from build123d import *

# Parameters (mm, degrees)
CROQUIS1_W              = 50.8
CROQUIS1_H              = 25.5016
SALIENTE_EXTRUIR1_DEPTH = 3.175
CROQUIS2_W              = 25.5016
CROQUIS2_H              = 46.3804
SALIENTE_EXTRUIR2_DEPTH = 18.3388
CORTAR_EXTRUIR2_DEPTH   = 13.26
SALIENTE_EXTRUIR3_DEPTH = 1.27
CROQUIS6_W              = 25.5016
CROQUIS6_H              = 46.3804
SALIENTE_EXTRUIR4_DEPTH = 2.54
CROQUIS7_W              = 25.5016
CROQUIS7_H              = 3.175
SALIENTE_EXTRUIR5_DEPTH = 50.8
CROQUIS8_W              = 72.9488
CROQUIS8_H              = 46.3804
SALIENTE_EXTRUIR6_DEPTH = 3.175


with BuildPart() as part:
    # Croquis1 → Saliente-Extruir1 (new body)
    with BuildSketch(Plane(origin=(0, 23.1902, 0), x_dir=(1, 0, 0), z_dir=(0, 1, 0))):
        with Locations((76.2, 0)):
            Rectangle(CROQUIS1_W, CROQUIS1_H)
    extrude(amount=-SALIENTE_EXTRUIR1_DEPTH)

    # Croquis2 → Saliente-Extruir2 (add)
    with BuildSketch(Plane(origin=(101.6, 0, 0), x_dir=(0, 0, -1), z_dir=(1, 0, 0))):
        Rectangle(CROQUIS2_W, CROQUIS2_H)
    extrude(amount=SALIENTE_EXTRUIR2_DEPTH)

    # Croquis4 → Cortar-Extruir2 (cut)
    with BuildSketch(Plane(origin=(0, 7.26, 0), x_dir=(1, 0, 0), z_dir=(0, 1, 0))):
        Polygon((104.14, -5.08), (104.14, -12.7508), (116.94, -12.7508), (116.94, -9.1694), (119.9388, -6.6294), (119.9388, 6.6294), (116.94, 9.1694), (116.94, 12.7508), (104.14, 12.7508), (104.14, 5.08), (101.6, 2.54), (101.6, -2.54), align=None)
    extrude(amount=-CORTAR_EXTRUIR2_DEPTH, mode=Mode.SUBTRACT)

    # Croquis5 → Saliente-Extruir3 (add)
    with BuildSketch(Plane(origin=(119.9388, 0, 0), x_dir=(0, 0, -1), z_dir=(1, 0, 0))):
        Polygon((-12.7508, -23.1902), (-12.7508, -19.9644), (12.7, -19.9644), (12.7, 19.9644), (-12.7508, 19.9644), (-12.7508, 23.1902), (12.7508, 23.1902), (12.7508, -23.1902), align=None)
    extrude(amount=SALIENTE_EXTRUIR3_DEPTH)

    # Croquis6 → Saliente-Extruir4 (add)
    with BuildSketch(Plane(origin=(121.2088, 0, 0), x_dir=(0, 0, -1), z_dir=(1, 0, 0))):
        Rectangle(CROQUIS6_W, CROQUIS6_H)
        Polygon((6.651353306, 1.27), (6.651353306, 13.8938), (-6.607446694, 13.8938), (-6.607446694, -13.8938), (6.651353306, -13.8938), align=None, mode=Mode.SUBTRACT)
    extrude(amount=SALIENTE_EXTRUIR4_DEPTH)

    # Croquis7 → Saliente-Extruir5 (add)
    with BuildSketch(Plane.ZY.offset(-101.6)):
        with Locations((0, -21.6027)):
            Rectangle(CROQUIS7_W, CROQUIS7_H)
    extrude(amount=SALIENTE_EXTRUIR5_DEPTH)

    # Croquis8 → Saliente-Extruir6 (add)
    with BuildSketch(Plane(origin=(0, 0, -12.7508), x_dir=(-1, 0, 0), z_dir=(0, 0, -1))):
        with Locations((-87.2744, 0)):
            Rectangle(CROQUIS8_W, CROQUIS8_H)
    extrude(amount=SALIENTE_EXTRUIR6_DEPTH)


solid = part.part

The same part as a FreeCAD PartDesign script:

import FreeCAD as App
import Part
import Sketcher

V = App.Vector
Q = App.Units.Quantity


def add_polygon(sketch, points):
    """Adds a closed chain of lines whose ends are joined by coincident constraints."""
    first, n = sketch.GeometryCount, len(points)
    for a, b in zip(points, points[1:] + points[:1]):
        sketch.addGeometry(Part.LineSegment(App.Vector(*a, 0), App.Vector(*b, 0)), False)
    for i in range(n):
        sketch.addConstraint(Sketcher.Constraint("Coincident", first + i, 2, first + (i + 1) % n, 1))

doc = App.newDocument("Part")
params = doc.addObject("Spreadsheet::Sheet", "Params")
for row, (alias, value) in enumerate([
    ("sketch1_width", "2 in"),
    ("sketch1_height", "1.004 in"),
    ("pad1_length", "0.125 in"),
    ("sketch2_width", "1.826 in"),
    ("sketch2_height", "1.004 in"),
    ("pad2_length", "0.722 in"),
    ("sketch3_height", "0.2 in"),
    ("sketch3_height2", "0.302 in"),
    ("sketch3_height3", "0.141 in"),
    ("pocket1_length", "13.26 mm"),
    ("sketch4_width", "0.127 in"),
    ("sketch4_width2", "1.826 in"),
    ("sketch4_height", "1.004 in"),
    ("pad3_length", "0.05 in"),
    ("sketch5_width", "1.826 in"),
    ("sketch5_width2", "1.094 in"),
    ("sketch5_height", "1.004 in"),
    ("sketch5_height2", "0.522 in"),
    ("pad4_length", "0.1 in"),
    ("sketch6_width", "0.125 in"),
    ("sketch6_height", "1.004 in"),
    ("pad5_length", "2 in"),
    ("sketch7_width", "2.872 in"),
    ("sketch7_height", "1.826 in"),
    ("pad6_length", "0.125 in"),
], start=1):
    params.set(f"A{row}", alias)
    params.set(f"B{row}", "=" + value)
    params.setAlias(f"B{row}", alias)

body = doc.addObject("PartDesign::Body", "Body")

# Sketch on XZ plane
sketch1 = doc.addObject("Sketcher::SketchObject", "Sketch")
body.addObject(sketch1)
sketch1.AttachmentSupport = (doc.XZ_Plane, [""])
sketch1.MapMode = "FlatFace"
sketch1.AttachmentOffset = App.Placement(V(0, 0, -0.913 * 25.4), App.Rotation())
add_polygon(sketch1, [(51, -13), (51, 13), (102, 13), (102, -13)])  # lines 0-3
sketch1.addConstraint([
    Sketcher.Constraint("Vertical", 0),
    Sketcher.Constraint("Horizontal", 1),
    Sketcher.Constraint("Vertical", 2),
    Sketcher.Constraint("Horizontal", 3),
    Sketcher.Constraint("DistanceX", 1, 1, 1, 2, Q("2 in")),
    Sketcher.Constraint("DistanceX", -1, 1, 0, 2, Q("2 in")),
    Sketcher.Constraint("DistanceY", 0, 1, 0, 2, Q("1.004 in")),
    Sketcher.Constraint("DistanceY", -1, 1, 0, 2, Q("0.502 in")),
])
sketch1.setExpression("Constraints[8]", "Params.sketch1_width")
sketch1.setExpression("Constraints[10]", "Params.sketch1_height")
pad1 = doc.addObject("PartDesign::Pad", "Pad")
body.addObject(pad1)
pad1.Profile = sketch1
pad1.setExpression("Length", "Params.pad1_length")

# Sketch on YZ plane
sketch2 = doc.addObject("Sketcher::SketchObject", "Sketch001")
body.addObject(sketch2)
sketch2.AttachmentSupport = (doc.YZ_Plane, [""])
sketch2.MapMode = "FlatFace"
sketch2.AttachmentOffset = App.Placement(V(0, 0, 4 * 25.4), App.Rotation())
add_polygon(sketch2, [(23, 13), (-23, 13), (-23, -13), (23, -13)])  # lines 0-3
sketch2.addConstraint([
    Sketcher.Constraint("Horizontal", 0),
    Sketcher.Constraint("Vertical", 1),
    Sketcher.Constraint("Horizontal", 2),
    Sketcher.Constraint("Vertical", 3),
    Sketcher.Constraint("Symmetric", 0, 2, 2, 2, -1, 1),
    Sketcher.Constraint("DistanceX", 0, 2, 0, 1, Q("1.826 in")),
    Sketcher.Constraint("DistanceY", 1, 2, 1, 1, Q("1.004 in")),
])
sketch2.setExpression("Constraints[9]", "Params.sketch2_width")
sketch2.setExpression("Constraints[10]", "Params.sketch2_height")
pad2 = doc.addObject("PartDesign::Pad", "Pad001")
body.addObject(pad2)
pad2.Profile = sketch2
pad2.setExpression("Length", "Params.pad2_length")

# Sketch on XZ plane
sketch3 = doc.addObject("Sketcher::SketchObject", "Sketch002")
body.addObject(sketch3)
sketch3.AttachmentSupport = (doc.XZ_Plane, [""])
sketch3.MapMode = "FlatFace"
sketch3.AttachmentOffset = App.Placement(V(0, 0, -7.26), App.Rotation())
add_polygon(sketch3, [(104.1, 5.1), (104.1, 12.8), (116.9, 12.8), (116.9, 9.2), (119.9, 6.6), (119.9, -6.6), (116.9, -9.2), (116.9, -12.8), (104.1, -12.8), (104.1, -5.1), (101.6, -2.5), (101.6, 2.5)])  # lines 0-11
sketch3.addConstraint([
    Sketcher.Constraint("Vertical", 0),
    Sketcher.Constraint("Horizontal", 1),
    Sketcher.Constraint("Vertical", 2),
    Sketcher.Constraint("Vertical", 4),
    Sketcher.Constraint("Vertical", 6),
    Sketcher.Constraint("Horizontal", 7),
    Sketcher.Constraint("Vertical", 8),
    Sketcher.Constraint("Vertical", 10),
    Sketcher.Constraint("Symmetric", 2, 2, 5, 2, -1),
    Sketcher.Constraint("Symmetric", 0, 2, 7, 2, -1),
    Sketcher.Constraint("Perpendicular", 9, 11),
    Sketcher.Constraint("Equal", 0, 8),
    Sketcher.Constraint("Equal", 3, 5),
    Sketcher.Constraint("Equal", 9, 11),
    Sketcher.Constraint("DistanceY", 10, 1, 10, 2, Q("0.2 in")),
    Sketcher.Constraint("DistanceX", -1, 1, 9, 2, Q("4 in")),
    Sketcher.Constraint("DistanceX", -1, 1, 0, 2, Q("4.1 in")),
    Sketcher.Constraint("DistanceY", 3, 2, 2, 2, Q("0.1 in")),
    Sketcher.Constraint("DistanceY", 0, 1, 0, 2, Q("0.302 in")),
    Sketcher.Constraint("DistanceY", 2, 2, 2, 1, Q("0.141 in")),
    Sketcher.Constraint("DistanceX", -1, 1, 3, 2, Q("4.722 in")),
    Sketcher.Constraint("DistanceX", 1, 1, 1, 2, Q("12.8 mm")),
])
sketch3.setExpression("Constraints[26]", "Params.sketch3_height")
sketch3.setExpression("Constraints[30]", "Params.sketch3_height2")
sketch3.setExpression("Constraints[31]", "Params.sketch3_height3")
pocket1 = doc.addObject("PartDesign::Pocket", "Pocket")
body.addObject(pocket1)
pocket1.Profile = sketch3
pocket1.setExpression("Length", "Params.pocket1_length")
pocket1.Reversed = True

# Sketch on YZ plane
sketch4 = doc.addObject("Sketcher::SketchObject", "Sketch003")
body.addObject(sketch4)
sketch4.AttachmentSupport = (doc.YZ_Plane, [""])
sketch4.MapMode = "FlatFace"
sketch4.AttachmentOffset = App.Placement(V(0, 0, 4.722 * 25.4), App.Rotation())
add_polygon(sketch4, [(-20, 12.8), (-23.2, 12.8), (-23.2, -12.8), (23.2, -12.8), (23.2, 12.8), (20, 12.8), (20, -12.7), (-20, -12.7)])  # lines 0-7
sketch4.addConstraint([
    Sketcher.Constraint("Horizontal", 0),
    Sketcher.Constraint("Vertical", 1),
    Sketcher.Constraint("Horizontal", 2),
    Sketcher.Constraint("Vertical", 3),
    Sketcher.Constraint("Horizontal", 4),
    Sketcher.Constraint("Vertical", 5),
    Sketcher.Constraint("Horizontal", 6),
    Sketcher.Constraint("Vertical", 7),
    Sketcher.Constraint("Symmetric", 0, 2, 2, 2, -1, 1),
    Sketcher.Constraint("Symmetric", 4, 2, 7, 2, -2),
    Sketcher.Constraint("DistanceY", 5, 2, -1, 1, Q("0.5 in")),
    Sketcher.Constraint("DistanceX", 0, 2, 0, 1, Q("0.127 in")),
    Sketcher.Constraint("DistanceX", 2, 1, 2, 2, Q("1.826 in")),
    Sketcher.Constraint("DistanceY", 1, 2, 1, 1, Q("1.004 in")),
])
sketch4.setExpression("Constraints[19]", "Params.sketch4_width")
sketch4.setExpression("Constraints[20]", "Params.sketch4_width2")
sketch4.setExpression("Constraints[21]", "Params.sketch4_height")
pad3 = doc.addObject("PartDesign::Pad", "Pad002")
body.addObject(pad3)
pad3.Profile = sketch4
pad3.setExpression("Length", "Params.pad3_length")

# Sketch on YZ plane
sketch5 = doc.addObject("Sketcher::SketchObject", "Sketch004")
body.addObject(sketch5)
sketch5.AttachmentSupport = (doc.YZ_Plane, [""])
sketch5.MapMode = "FlatFace"
sketch5.AttachmentOffset = App.Placement(V(0, 0, 4.772 * 25.4), App.Rotation())
add_polygon(sketch5, [(23, 13), (-23, 13), (-23, -13), (23, -13)])  # lines 0-3
add_polygon(sketch5, [(14, -7), (-14, -7), (-14, 7), (14, 7)])  # lines 4-7
sketch5.addConstraint([
    Sketcher.Constraint("Horizontal", 0),
    Sketcher.Constraint("Vertical", 1),
    Sketcher.Constraint("Horizontal", 2),
    Sketcher.Constraint("Vertical", 3),
    Sketcher.Constraint("Horizontal", 4),
    Sketcher.Constraint("Vertical", 5),
    Sketcher.Constraint("Horizontal", 6),
    Sketcher.Constraint("Vertical", 7),
    Sketcher.Constraint("Symmetric", 0, 2, 2, 2, -1, 1),
    Sketcher.Constraint("DistanceX", 0, 2, 0, 1, Q("1.826 in")),
    Sketcher.Constraint("DistanceX", 4, 2, 4, 1, Q("1.094 in")),
    Sketcher.Constraint("DistanceY", 1, 2, 1, 1, Q("1.004 in")),
    Sketcher.Constraint("DistanceY", 5, 1, 5, 2, Q("0.522 in")),
    Sketcher.Constraint("DistanceX", 4, 2, 2, 2, Q("1.46 in")),
    Sketcher.Constraint("DistanceY", 4, 2, -1, 1, Q("6.651353 mm")),
])
sketch5.setExpression("Constraints[17]", "Params.sketch5_width")
sketch5.setExpression("Constraints[18]", "Params.sketch5_width2")
sketch5.setExpression("Constraints[19]", "Params.sketch5_height")
sketch5.setExpression("Constraints[20]", "Params.sketch5_height2")
pad4 = doc.addObject("PartDesign::Pad", "Pad003")
body.addObject(pad4)
pad4.Profile = sketch5
pad4.setExpression("Length", "Params.pad4_length")

# Sketch on YZ plane
sketch6 = doc.addObject("Sketcher::SketchObject", "Sketch005")
body.addObject(sketch6)
sketch6.AttachmentSupport = (doc.YZ_Plane, [""])
sketch6.MapMode = "FlatFace"
sketch6.AttachmentOffset = App.Placement(V(0, 0, 4 * 25.4), App.Rotation())
add_polygon(sketch6, [(-20, -12.8), (-23.2, -12.8), (-23.2, 12.8), (-20, 12.8)])  # lines 0-3
sketch6.addConstraint([
    Sketcher.Constraint("Horizontal", 0),
    Sketcher.Constraint("Vertical", 1),
    Sketcher.Constraint("Horizontal", 2),
    Sketcher.Constraint("Vertical", 3),
    Sketcher.Constraint("DistanceX", 0, 2, 0, 1, Q("0.125 in")),
    Sketcher.Constraint("DistanceY", 1, 1, 1, 2, Q("1.004 in")),
    Sketcher.Constraint("DistanceX", 0, 2, -1, 1, Q("0.913 in")),
    Sketcher.Constraint("DistanceY", 0, 2, -1, 1, Q("0.502 in")),
])
sketch6.setExpression("Constraints[8]", "Params.sketch6_width")
sketch6.setExpression("Constraints[9]", "Params.sketch6_height")
pad5 = doc.addObject("PartDesign::Pad", "Pad004")
body.addObject(pad5)
pad5.Profile = sketch6
pad5.setExpression("Length", "Params.pad5_length")
pad5.Reversed = True

# Sketch on XY plane
sketch7 = doc.addObject("Sketcher::SketchObject", "Sketch006")
body.addObject(sketch7)
sketch7.AttachmentSupport = (doc.XY_Plane, [""])
sketch7.MapMode = "FlatFace"
sketch7.AttachmentOffset = App.Placement(V(0, 0, -0.502 * 25.4), App.Rotation())
add_polygon(sketch7, [(124, 23), (124, -23), (51, -23), (51, 23)])  # lines 0-3
sketch7.addConstraint([
    Sketcher.Constraint("Vertical", 0),
    Sketcher.Constraint("Horizontal", 1),
    Sketcher.Constraint("Vertical", 2),
    Sketcher.Constraint("Horizontal", 3),
    Sketcher.Constraint("DistanceX", -1, 1, 1, 2, Q("2 in")),
    Sketcher.Constraint("DistanceX", 1, 2, 1, 1, Q("2.872 in")),
    Sketcher.Constraint("DistanceY", 0, 2, 0, 1, Q("1.826 in")),
    Sketcher.Constraint("DistanceY", 0, 2, -1, 1, Q("0.913 in")),
])
sketch7.setExpression("Constraints[9]", "Params.sketch7_width")
sketch7.setExpression("Constraints[10]", "Params.sketch7_height")
pad6 = doc.addObject("PartDesign::Pad", "Pad005")
body.addObject(pad6)
pad6.Profile = sketch7
pad6.setExpression("Length", "Params.pad6_length")
pad6.Reversed = True

doc.recompute()
